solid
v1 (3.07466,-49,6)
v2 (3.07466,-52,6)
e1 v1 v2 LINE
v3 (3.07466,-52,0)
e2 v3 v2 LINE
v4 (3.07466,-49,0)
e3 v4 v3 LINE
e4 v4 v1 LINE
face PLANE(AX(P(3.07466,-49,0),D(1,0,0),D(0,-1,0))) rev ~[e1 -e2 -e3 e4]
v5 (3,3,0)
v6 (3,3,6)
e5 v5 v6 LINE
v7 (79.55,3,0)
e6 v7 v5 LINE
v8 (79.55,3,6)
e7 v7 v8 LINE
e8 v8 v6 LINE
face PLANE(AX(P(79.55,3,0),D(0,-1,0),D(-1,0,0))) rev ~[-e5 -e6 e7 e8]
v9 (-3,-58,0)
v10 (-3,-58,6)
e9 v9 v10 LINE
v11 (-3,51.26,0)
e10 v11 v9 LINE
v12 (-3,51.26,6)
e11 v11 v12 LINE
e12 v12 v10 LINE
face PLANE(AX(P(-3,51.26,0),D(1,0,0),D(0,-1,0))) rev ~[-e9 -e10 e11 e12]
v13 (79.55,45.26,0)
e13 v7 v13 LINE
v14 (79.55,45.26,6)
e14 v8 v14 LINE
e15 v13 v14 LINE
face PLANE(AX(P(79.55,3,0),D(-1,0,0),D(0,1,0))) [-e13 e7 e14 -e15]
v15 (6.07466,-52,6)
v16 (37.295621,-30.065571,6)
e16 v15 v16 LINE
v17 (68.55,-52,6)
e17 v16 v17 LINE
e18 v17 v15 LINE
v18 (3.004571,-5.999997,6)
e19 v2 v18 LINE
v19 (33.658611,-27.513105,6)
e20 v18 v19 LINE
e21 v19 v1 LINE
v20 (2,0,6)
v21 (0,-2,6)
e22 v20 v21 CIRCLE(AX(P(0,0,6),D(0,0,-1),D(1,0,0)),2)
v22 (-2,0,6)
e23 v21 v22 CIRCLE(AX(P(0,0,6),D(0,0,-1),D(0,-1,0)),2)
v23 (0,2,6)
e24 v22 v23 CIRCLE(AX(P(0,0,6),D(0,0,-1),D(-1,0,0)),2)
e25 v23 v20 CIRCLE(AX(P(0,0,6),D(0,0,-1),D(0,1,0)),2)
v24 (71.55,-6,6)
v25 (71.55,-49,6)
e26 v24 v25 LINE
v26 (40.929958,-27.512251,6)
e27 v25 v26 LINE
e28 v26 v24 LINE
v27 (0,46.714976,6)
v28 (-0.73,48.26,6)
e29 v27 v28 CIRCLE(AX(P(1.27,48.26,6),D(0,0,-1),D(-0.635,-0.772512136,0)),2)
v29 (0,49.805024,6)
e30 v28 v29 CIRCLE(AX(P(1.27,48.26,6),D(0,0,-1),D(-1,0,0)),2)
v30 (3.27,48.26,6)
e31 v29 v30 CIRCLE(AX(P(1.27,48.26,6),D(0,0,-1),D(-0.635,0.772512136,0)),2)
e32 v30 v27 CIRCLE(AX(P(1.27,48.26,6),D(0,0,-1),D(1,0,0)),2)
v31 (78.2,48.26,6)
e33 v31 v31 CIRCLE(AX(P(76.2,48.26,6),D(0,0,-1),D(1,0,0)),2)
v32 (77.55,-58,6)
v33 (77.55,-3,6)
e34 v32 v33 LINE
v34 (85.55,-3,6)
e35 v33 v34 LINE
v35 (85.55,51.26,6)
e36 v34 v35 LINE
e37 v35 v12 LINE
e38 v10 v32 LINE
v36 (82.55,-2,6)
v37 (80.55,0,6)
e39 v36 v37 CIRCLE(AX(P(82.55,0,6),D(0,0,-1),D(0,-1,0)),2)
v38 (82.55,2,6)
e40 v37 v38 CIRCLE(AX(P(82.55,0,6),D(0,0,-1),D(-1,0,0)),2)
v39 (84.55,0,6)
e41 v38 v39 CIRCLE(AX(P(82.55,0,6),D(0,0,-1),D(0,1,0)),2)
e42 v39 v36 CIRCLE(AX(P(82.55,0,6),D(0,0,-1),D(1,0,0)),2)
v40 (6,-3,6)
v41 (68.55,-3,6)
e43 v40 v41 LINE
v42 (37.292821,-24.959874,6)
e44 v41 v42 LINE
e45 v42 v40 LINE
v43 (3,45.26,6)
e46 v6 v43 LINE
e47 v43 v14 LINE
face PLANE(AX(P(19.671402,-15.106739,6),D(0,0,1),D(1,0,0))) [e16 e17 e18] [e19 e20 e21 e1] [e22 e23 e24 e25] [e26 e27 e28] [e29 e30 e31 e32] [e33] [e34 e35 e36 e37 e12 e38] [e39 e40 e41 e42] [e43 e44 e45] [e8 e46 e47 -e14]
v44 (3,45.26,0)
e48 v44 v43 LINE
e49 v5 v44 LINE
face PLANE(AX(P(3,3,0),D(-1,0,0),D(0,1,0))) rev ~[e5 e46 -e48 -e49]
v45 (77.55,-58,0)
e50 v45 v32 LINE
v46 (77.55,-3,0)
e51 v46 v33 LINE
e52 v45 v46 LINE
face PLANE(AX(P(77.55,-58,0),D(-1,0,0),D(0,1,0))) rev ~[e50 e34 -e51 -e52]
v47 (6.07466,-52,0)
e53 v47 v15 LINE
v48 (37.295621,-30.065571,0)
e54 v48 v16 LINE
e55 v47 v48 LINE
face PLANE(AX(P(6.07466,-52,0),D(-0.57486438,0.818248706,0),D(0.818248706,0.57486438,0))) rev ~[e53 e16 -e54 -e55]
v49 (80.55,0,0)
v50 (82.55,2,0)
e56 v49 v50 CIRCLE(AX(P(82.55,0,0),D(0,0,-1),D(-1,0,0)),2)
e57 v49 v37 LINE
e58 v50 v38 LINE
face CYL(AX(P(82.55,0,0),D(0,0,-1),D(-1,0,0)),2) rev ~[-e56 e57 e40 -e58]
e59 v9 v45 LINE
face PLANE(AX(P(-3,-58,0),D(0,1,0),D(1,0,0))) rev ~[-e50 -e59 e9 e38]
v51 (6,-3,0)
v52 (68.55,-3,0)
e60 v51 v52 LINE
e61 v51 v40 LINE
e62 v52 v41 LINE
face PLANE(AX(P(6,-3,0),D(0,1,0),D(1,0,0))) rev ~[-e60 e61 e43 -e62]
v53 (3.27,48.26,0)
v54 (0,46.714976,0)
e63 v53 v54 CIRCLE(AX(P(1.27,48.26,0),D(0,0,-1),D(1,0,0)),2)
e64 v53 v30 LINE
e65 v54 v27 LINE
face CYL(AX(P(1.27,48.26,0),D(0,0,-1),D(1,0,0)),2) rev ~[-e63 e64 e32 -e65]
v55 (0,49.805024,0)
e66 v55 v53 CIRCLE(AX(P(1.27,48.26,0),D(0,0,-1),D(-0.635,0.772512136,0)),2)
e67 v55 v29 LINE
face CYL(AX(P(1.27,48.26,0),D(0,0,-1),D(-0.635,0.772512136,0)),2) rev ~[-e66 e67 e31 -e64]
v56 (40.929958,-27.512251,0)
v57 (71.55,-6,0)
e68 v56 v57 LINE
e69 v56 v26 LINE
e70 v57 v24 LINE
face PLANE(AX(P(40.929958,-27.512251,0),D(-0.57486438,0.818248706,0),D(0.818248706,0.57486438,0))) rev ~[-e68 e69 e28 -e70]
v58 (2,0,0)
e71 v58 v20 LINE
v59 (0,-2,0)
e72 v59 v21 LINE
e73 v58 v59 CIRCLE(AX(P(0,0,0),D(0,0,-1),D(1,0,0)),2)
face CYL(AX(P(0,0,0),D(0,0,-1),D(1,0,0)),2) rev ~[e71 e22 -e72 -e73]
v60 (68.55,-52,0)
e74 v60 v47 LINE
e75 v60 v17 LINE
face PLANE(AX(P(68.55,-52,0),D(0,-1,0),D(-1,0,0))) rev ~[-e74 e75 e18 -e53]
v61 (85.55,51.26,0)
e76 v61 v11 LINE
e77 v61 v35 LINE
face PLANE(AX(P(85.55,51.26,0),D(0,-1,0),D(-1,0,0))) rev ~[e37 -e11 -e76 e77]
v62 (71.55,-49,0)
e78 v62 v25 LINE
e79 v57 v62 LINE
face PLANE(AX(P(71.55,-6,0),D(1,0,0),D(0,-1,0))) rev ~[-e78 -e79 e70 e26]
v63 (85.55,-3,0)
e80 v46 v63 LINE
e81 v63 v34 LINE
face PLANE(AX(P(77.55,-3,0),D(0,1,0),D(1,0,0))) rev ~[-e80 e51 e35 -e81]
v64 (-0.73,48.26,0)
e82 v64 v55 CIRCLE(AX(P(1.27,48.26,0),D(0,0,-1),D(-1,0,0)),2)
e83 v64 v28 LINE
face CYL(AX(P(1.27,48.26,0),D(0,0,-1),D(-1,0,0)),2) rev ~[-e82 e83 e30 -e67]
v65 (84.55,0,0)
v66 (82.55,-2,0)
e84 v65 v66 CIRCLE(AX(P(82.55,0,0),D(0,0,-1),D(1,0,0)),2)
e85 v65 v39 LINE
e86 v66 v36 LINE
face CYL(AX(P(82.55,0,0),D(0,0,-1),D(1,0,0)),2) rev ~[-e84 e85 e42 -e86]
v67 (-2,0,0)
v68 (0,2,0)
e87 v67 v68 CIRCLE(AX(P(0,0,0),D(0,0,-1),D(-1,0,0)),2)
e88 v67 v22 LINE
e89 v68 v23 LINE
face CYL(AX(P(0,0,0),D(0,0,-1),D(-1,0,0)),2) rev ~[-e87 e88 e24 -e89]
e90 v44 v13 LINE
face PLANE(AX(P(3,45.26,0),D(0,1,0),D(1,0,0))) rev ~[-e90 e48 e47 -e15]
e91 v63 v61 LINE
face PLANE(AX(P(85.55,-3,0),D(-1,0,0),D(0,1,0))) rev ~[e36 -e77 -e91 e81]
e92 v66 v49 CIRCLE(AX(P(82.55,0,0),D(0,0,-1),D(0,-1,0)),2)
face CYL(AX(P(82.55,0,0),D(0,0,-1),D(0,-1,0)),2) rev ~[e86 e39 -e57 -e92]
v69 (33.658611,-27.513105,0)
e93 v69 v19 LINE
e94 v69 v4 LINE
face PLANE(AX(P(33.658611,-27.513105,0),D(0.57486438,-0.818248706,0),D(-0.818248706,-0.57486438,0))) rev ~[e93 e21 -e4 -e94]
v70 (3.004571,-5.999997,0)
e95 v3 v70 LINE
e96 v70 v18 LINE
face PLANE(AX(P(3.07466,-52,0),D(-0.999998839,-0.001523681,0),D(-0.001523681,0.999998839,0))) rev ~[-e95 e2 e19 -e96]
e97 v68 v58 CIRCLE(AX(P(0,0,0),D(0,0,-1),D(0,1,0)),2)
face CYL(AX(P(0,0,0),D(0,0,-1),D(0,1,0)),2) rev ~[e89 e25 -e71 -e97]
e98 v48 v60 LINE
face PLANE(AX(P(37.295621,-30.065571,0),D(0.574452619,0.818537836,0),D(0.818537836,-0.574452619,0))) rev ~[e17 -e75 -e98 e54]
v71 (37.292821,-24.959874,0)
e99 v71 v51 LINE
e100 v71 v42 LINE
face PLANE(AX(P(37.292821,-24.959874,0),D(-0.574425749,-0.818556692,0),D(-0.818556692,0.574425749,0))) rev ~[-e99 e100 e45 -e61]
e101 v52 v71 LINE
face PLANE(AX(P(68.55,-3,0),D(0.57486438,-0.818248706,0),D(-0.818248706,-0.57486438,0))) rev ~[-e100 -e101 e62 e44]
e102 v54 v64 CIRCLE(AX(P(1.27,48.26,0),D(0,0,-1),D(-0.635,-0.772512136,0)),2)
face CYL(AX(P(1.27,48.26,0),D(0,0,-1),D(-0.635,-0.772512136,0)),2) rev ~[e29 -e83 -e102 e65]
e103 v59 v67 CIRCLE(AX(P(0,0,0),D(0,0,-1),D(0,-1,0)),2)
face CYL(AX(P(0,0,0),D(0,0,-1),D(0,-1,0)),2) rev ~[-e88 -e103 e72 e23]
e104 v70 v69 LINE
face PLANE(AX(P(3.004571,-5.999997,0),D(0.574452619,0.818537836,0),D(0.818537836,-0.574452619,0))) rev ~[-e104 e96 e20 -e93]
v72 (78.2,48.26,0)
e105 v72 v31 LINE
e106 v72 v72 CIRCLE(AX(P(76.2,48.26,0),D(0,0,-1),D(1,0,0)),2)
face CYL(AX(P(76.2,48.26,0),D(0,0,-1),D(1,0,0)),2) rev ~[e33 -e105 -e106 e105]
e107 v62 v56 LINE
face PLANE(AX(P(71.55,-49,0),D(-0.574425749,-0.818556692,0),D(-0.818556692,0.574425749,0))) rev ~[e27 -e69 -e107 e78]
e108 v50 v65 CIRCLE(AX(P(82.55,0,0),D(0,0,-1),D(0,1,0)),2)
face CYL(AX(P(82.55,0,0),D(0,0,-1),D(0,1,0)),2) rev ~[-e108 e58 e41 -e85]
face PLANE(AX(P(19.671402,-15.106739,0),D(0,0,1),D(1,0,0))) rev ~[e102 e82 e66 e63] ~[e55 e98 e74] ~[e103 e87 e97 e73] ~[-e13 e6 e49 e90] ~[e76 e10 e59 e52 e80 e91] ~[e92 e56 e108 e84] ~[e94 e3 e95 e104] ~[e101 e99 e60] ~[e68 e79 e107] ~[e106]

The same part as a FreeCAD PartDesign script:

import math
import FreeCAD as App
import Part
import Sketcher

doc = App.newDocument("Part")
params = doc.addObject("Spreadsheet::Sheet", "Params")
for row, (alias, value) in enumerate([
    ("sketch1_diameter", "4 mm"),
    ("sketch1_width", "8 mm"),
    ("sketch1_height", "55 mm"),
    ("sketch1_height2", "3 mm"),
    ("sketch1_height3", "43 mm"),
    ("pad1_length", "6 mm"),
], start=1):
    params.set(f"A{row}", alias)
    params.set(f"B{row}", "=" + value)
    params.setAlias(f"B{row}", alias)

body = doc.addObject("PartDesign::Body", "Body")

# Sketch on XY plane
sketch1 = doc.addObject("Sketcher::SketchObject", "Sketch")
body.addObject(sketch1)
sketch1.AttachmentSupport = (doc.XY_Plane, [""])
sketch1.MapMode = "FlatFace"
sketch1.addGeometry([
    Part.LineSegment(App.Vector(-3, -58, 0), App.Vector(77.5, -58, 0)),  # 0
    Part.LineSegment(App.Vector(77.5, -58, 0), App.Vector(77.5, -3, 0)),  # 1
    Part.LineSegment(App.Vector(77.5, -3, 0), App.Vector(85.5, -3, 0)),  # 2
    Part.LineSegment(App.Vector(85.5, -3, 0), App.Vector(85.5, 51.3, 0)),  # 3
    Part.LineSegment(App.Vector(85.5, 51.3, 0), App.Vector(-3, 51.3, 0)),  # 4
    Part.LineSegment(App.Vector(-3, 51.3, 0), App.Vector(-3, -58, 0)),  # 5
    Part.ArcOfCircle(Part.Circle(App.Vector(1.3, 48.3, 0), App.Vector(0, 0, 1), 2), math.radians(-129), math.radians(0)),  # 6
    Part.ArcOfCircle(Part.Circle(App.Vector(1.3, 48.3, 0), App.Vector(0, 0, 1), 2), math.radians(180), math.radians(231)),  # 7
    Part.ArcOfCircle(Part.Circle(App.Vector(1.3, 48.3, 0), App.Vector(0, 0, 1), 2), math.radians(129), math.radians(180)),  # 8
    Part.ArcOfCircle(Part.Circle(App.Vector(1.3, 48.3, 0), App.Vector(0, 0, 1), 2), math.radians(0), math.radians(129)),  # 9
    Part.LineSegment(App.Vector(3.1, -49, 0), App.Vector(3.1, -52, 0)),  # 10
    Part.LineSegment(App.Vector(3.1, -52, 0), App.Vector(3, -6, 0)),  # 11
    Part.LineSegment(App.Vector(3, -6, 0), App.Vector(33.7, -27.5, 0)),  # 12
    Part.LineSegment(App.Vector(33.7, -27.5, 0), App.Vector(3.1, -49, 0)),  # 13
    Part.LineSegment(App.Vector(37.3, -30.1, 0), App.Vector(68.5, -52, 0)),  # 14
    Part.LineSegment(App.Vector(68.5, -52, 0), App.Vector(6.1, -52, 0)),  # 15
    Part.LineSegment(App.Vector(6.1, -52, 0), App.Vector(37.3, -30.1, 0)),  # 16
    Part.LineSegment(App.Vector(37.3, -25, 0), App.Vector(6, -3, 0)),  # 17
    Part.LineSegment(App.Vector(6, -3, 0), App.Vector(68.5, -3, 0)),  # 18
    Part.LineSegment(App.Vector(68.5, -3, 0), App.Vector(37.3, -25, 0)),  # 19
    Part.LineSegment(App.Vector(71.5, -49, 0), App.Vector(40.9, -27.5, 0)),  # 20
    Part.LineSegment(App.Vector(40.9, -27.5, 0), App.Vector(71.5, -6, 0)),  # 21
    Part.LineSegment(App.Vector(71.5, -6, 0), App.Vector(71.5, -49, 0)),  # 22
    Part.ArcOfCircle(Part.Circle(App.Vector(0, 0, 0), App.Vector(0, 0, 1), 2), math.radians(90), math.radians(180)),  # 23
    Part.ArcOfCircle(Part.Circle(App.Vector(0, 0, 0), App.Vector(0, 0, 1), 2), math.radians(0), math.radians(90)),  # 24
    Part.ArcOfCircle(Part.Circle(App.Vector(0, 0, 0), App.Vector(0, 0, 1), 2), math.radians(-90), math.radians(0)),  # 25
    Part.ArcOfCircle(Part.Circle(App.Vector(0, 0, 0), App.Vector(0, 0, 1), 2), math.radians(180), math.radians(270)),  # 26
    Part.LineSegment(App.Vector(79.5, 3, 0), App.Vector(3, 3, 0)),  # 27
    Part.LineSegment(App.Vector(3, 3, 0), App.Vector(3, 45.3, 0)),  # 28
    Part.LineSegment(App.Vector(3, 45.3, 0), App.Vector(79.5, 45.3, 0)),  # 29
    Part.LineSegment(App.Vector(79.5, 45.3, 0), App.Vector(79.5, 3, 0)),  # 30
    Part.ArcOfCircle(Part.Circle(App.Vector(82.5, 0, 0), App.Vector(0, 0, 1), 2), math.radians(0), math.radians(90)),  # 31
    Part.ArcOfCircle(Part.Circle(App.Vector(82.5, 0, 0), App.Vector(0, 0, 1), 2), math.radians(-90), math.radians(0)),  # 32
    Part.ArcOfCircle(Part.Circle(App.Vector(82.5, 0, 0), App.Vector(0, 0, 1), 2), math.radians(180), math.radians(270)),  # 33
    Part.ArcOfCircle(Part.Circle(App.Vector(82.5, 0, 0), App.Vector(0, 0, 1), 2), math.radians(90), math.radians(180)),  # 34
    Part.Circle(App.Vector(76.2, 48.3, 0), App.Vector(0, 0, 1), 2),  # 35
], False)
sketch1.addConstraint([
    Sketcher.Constraint("Coincident", 0, 2, 1, 1),
    Sketcher.Constraint("Coincident", 1, 2, 2, 1),
    Sketcher.Constraint("Coincident", 2, 2, 3, 1),
    Sketcher.Constraint("Coincident", 3, 2, 4, 1),
    Sketcher.Constraint("Coincident", 4, 2, 5, 1),
    Sketcher.Constraint("Coincident", 5, 2, 0, 1),
    Sketcher.Constraint("Tangent", 6, 1, 7, 2),
    Sketcher.Constraint("Tangent", 7, 1, 8, 2),
    Sketcher.Constraint("Tangent", 8, 1, 9, 2),
    Sketcher.Constraint("Tangent", 9, 1, 6, 2),
    Sketcher.Constraint("Coincident", 10, 2, 11, 1),
    Sketcher.Constraint("Coincident", 11, 2, 12, 1),
    Sketcher.Constraint("Coincident", 12, 2, 13, 1),
    Sketcher.Constraint("Coincident", 13, 2, 10, 1),
    Sketcher.Constraint("Coincident", 14, 2, 15, 1),
    Sketcher.Constraint("Coincident", 15, 2, 16, 1),
    Sketcher.Constraint("Coincident", 16, 2, 14, 1),
    Sketcher.Constraint("Coincident", 17, 2, 18, 1),
    Sketcher.Constraint("Coincident", 18, 2, 19, 1),
    Sketcher.Constraint("Coincident", 19, 2, 17, 1),
    Sketcher.Constraint("Coincident", 20, 2, 21, 1),
    Sketcher.Constraint("Coincident", 21, 2, 22, 1),
    Sketcher.Constraint("Coincident", 22, 2, 20, 1),
    Sketcher.Constraint("Tangent", 23, 1, 24, 2),
    Sketcher.Constraint("Tangent", 24, 1, 25, 2),
    Sketcher.Constraint("Tangent", 25, 1, 26, 2),
    Sketcher.Constraint("Tangent", 26, 1, 23, 2),
    Sketcher.Constraint("Coincident", 27, 2, 28, 1),
    Sketcher.Constraint("Coincident", 28, 2, 29, 1),
    Sketcher.Constraint("Coincident", 29, 2, 30, 1),
    Sketcher.Constraint("Coincident", 30, 2, 27, 1),
    Sketcher.Constraint("Tangent", 31, 1, 32, 2),
    Sketcher.Constraint("Tangent", 32, 1, 33, 2),
    Sketcher.Constraint("Tangent", 33, 1, 34, 2),
    Sketcher.Constraint("Tangent", 34, 1, 31, 2),
    Sketcher.Constraint("Horizontal", 0),
    Sketcher.Constraint("Vertical", 1),
    Sketcher.Constraint("Horizontal", 2),
    Sketcher.Constraint("Vertical", 3),
    Sketcher.Constraint("Horizontal", 4),
    Sketcher.Constraint("Vertical", 5),
    Sketcher.Constraint("Vertical", 10),
    Sketcher.Constraint("Horizontal", 15),
    Sketcher.Constraint("Horizontal", 18),
    Sketcher.Constraint("Vertical", 22),
    Sketcher.Constraint("Horizontal", 27),
    Sketcher.Constraint("Vertical", 28),
    Sketcher.Constraint("Horizontal", 29),
    Sketcher.Constraint("Vertical", 30),
    Sketcher.Constraint("Coincident", 23, 3, -1, 1),
    Sketcher.Constraint("Equal", 6, 7),
    Sketcher.Constraint("Equal", 9, 23),
    Sketcher.Constraint("Equal", 23, 24),
    Sketcher.Constraint("Equal", 26, 31),
    Sketcher.Constraint("Equal", 31, 32),
    Sketcher.Constraint("Equal", 34, 35),
    Sketcher.Constraint("Symmetric", 32, 1, 34, 1, -1),
    Sketcher.Constraint("PointOnObject", 6, 1, -2),
    Sketcher.Constraint("PointOnObject", 8, 1, -2),
    Sketcher.Constraint("PointOnObject", 23, 1, -2),
    Sketcher.Constraint("PointOnObject", 24, 1, -1),
    Sketcher.Constraint("PointOnObject", 25, 1, -2),
    Sketcher.Constraint("PointOnObject", 26, 1, -1),
    Sketcher.Constraint("PointOnObject", 31, 1, -1),
    Sketcher.Constraint("PointOnObject", 33, 1, -1),
    Sketcher.Constraint("Parallel", 12, 14),
    Sketcher.Constraint("Parallel", 13, 16),
    Sketcher.Constraint("Parallel", 16, 19),
    Sketcher.Constraint("Parallel", 17, 20),
    Sketcher.Constraint("Parallel", 19, 21),
    Sketcher.Constraint("Horizontal", 9, 3, 35, 3),
    Sketcher.Constraint("Horizontal", 35, 3, 7, 1),
    Sketcher.Constraint("Horizontal", 7, 1, 9, 1),
    Sketcher.Constraint("Horizontal", 10, 2, 14, 2),
    Sketcher.Constraint("Horizontal", 2, 2, 17, 2),
    Sketcher.Constraint("Horizontal", 13, 2, 22, 2),
    Sketcher.Constraint("Vertical", 14, 2, 18, 2),
    Sketcher.Constraint("Vertical", 34, 3, 32, 1),
    Sketcher.Constraint("Diameter", 35, 4.0),
    Sketcher.Constraint("DistanceX", 2, 1, 2, 2, 8.0),
    Sketcher.Constraint("DistanceY", 1, 1, 1, 2, 55.0),
    Sketcher.Constraint("DistanceY", 10, 2, 10, 1, 3.0),
    Sketcher.Constraint("DistanceY", 22, 2, 22, 1, 43.0),
    Sketcher.Constraint("DistanceY", 0, 2, -1, 1, 58.0),
    Sketcher.Constraint("DistanceX", 4, 2, -1, 1, 3.0),
    Sketcher.Constraint("DistanceY", 10, 2, -1, 1, 52.0),
    Sketcher.Constraint("DistanceX", -1, 1, 17, 2, 6.0),
    Sketcher.Constraint("DistanceX", -1, 1, 27, 2, 3.0),
    Sketcher.Constraint("DistanceY", -1, 1, 27, 2, 3.0),
    Sketcher.Constraint("DistanceX", 0, 2, 31, 3, 5.0),
    Sketcher.Constraint("DistanceY", 35, 3, 3, 2, 3.0),
    Sketcher.Constraint("DistanceX", 14, 2, 0, 2, 9.0),
    Sketcher.Constraint("DistanceX", 10, 2, 15, 2, 3.0),
    Sketcher.Constraint("DistanceX", 18, 2, 21, 2, 3.0),
    Sketcher.Constraint("DistanceY", 28, 2, 9, 1, 3.0),
    Sketcher.Constraint("DistanceX", 29, 2, 3, 2, 6.0),
    Sketcher.Constraint("DistanceX", 0, 1, 0, 2, 80.55),
    Sketcher.Constraint("DistanceY", 3, 1, 3, 2, 54.26),
    Sketcher.Constraint("DistanceX", -1, 1, 35, 3, 76.2),
    Sketcher.Constraint("DistanceX", -1, 1, 6, 3, 1.27),
    Sketcher.Constraint("DistanceX", 15, 2, 15, 1, 62.47534),
    Sketcher.Constraint("DistanceX", 19, 2, 16, 2, 0.0028),
    Sketcher.Constraint("Distance", 13, 37.377328),
    Sketcher.Constraint("Distance", 14, 38.183182),
    Sketcher.Constraint("DistanceX", -1, 1, 11, 2, 3.004571),
    Sketcher.Constraint("DistanceX", -1, 1, 12, 2, 33.658611),
])
sketch1.setExpression("Constraints[78]", "Params.sketch1_diameter")
sketch1.setExpression("Constraints[79]", "Params.sketch1_width")
sketch1.setExpression("Constraints[80]", "Params.sketch1_height")
sketch1.setExpression("Constraints[81]", "Params.sketch1_height2")
sketch1.setExpression("Constraints[82]", "Params.sketch1_height3")
pad1 = doc.addObject("PartDesign::Pad", "Pad")
body.addObject(pad1)
pad1.Profile = sketch1
pad1.setExpression("Length", "Params.pad1_length")

doc.recompute()
